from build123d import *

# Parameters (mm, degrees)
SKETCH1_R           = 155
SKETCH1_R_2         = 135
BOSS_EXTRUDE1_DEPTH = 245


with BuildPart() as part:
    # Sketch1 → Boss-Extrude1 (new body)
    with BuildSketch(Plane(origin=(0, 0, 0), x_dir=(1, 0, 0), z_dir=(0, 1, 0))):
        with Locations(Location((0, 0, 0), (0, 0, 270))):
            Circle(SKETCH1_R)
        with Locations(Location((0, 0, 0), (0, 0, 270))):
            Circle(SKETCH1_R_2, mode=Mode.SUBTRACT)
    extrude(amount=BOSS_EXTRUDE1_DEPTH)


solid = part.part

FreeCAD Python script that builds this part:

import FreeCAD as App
import Part
import Sketcher
from FreeCAD import Vector
Q = App.Units.Quantity

doc = App.newDocument("Part")
body = doc.addObject("PartDesign::Body", "Body")

# Sketch on XZ plane
sketch1 = body.newObject("Sketcher::SketchObject", "Sketch")
sketch1.AttachmentSupport = (doc.getObject("XZ_Plane"), [""])
sketch1.MapMode = "FlatFace"
sketch1.addGeometry(Part.Circle(Vector(0, 0, 0), Vector(0, 0, 1), 155), False)
sketch1.addGeometry(Part.Circle(Vector(0, 0, 0), Vector(0, 0, 1), 135), False)
sketch1.addConstraint(Sketcher.Constraint("Coincident", 0, 3, -1, 1))
sketch1.addConstraint(Sketcher.Constraint("Coincident", 1, 3, -1, 1))
sketch1.addConstraint(Sketcher.Constraint("Diameter", 0, Q("310 mm")))
sketch1.addConstraint(Sketcher.Constraint("Diameter", 1, Q("270 mm")))
pad1 = body.newObject("PartDesign::Pad", "Pad")
pad1.Profile = sketch1
pad1.Length = 245
pad1.Reversed = True

doc.recompute()
